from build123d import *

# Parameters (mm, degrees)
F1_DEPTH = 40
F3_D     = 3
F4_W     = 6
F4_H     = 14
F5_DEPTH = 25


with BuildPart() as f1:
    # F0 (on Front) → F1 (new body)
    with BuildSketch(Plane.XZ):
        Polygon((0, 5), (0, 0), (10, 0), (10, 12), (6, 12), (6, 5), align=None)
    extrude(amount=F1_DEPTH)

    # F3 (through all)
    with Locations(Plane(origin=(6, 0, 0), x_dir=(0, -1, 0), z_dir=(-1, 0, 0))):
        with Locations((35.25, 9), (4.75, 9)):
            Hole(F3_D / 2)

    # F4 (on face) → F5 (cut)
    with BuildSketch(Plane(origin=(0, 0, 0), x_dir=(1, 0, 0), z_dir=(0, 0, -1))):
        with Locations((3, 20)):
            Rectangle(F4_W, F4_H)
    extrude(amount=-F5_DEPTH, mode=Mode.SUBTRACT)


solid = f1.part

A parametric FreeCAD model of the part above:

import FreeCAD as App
import Part
import Sketcher

V = App.Vector
Q = App.Units.Quantity


def add_polygon(sketch, points):
    """Adds a closed chain of lines whose ends are joined by coincident constraints."""
    first, n = sketch.GeometryCount, len(points)
    for a, b in zip(points, points[1:] + points[:1]):
        sketch.addGeometry(Part.LineSegment(App.Vector(*a, 0), App.Vector(*b, 0)), False)
    for i in range(n):
        sketch.addConstraint(Sketcher.Constraint("Coincident", first + i, 2, first + (i + 1) % n, 1))

doc = App.newDocument("Part")
body = doc.addObject("PartDesign::Body", "Body")

sketch1 = body.newObject("Sketcher::SketchObject", "Sketch")
sketch1.AttachmentSupport = (doc.getObject("XZ_Plane"), [""])
sketch1.MapMode = "FlatFace"
add_polygon(sketch1, [(0, 5), (0, 0), (10, 0), (10, 12), (6, 12), (6, 5)])
sketch1.addConstraint(Sketcher.Constraint("Vertical", 0))
sketch1.addConstraint(Sketcher.Constraint("Horizontal", 1))
sketch1.addConstraint(Sketcher.Constraint("Vertical", 2))
sketch1.addConstraint(Sketcher.Constraint("Horizontal", 3))
sketch1.addConstraint(Sketcher.Constraint("Vertical", 4))
sketch1.addConstraint(Sketcher.Constraint("Horizontal", 5))
sketch1.addConstraint(Sketcher.Constraint("Coincident", 0, 2, -1, 1))
sketch1.addConstraint(Sketcher.Constraint("DistanceX", 1, 1, 1, 2, Q("10 mm")))
sketch1.addConstraint(Sketcher.Constraint("DistanceX", 3, 2, 3, 1, Q("4 mm")))
sketch1.addConstraint(Sketcher.Constraint("DistanceY", 0, 2, 0, 1, Q("5 mm")))
sketch1.addConstraint(Sketcher.Constraint("DistanceY", 2, 1, 2, 2, Q("12 mm")))
pad1 = body.newObject("PartDesign::Pad", "Pad")
pad1.Profile = sketch1
pad1.Length = 40

sketch2 = body.newObject("Sketcher::SketchObject", "Sketch001")
sketch2.AttachmentSupport = (doc.getObject("YZ_Plane"), [""])
sketch2.MapMode = "FlatFace"
sketch2.AttachmentOffset = App.Placement(V(0, 0, 6), App.Rotation())
sketch2.addGeometry(Part.Circle(V(-35.2, 9, 0), V(0, 0, 1), 1.5), False)
sketch2.addGeometry(Part.Circle(V(-4.8, 9, 0), V(0, 0, 1), 1.5), False)
sketch2.addConstraint(Sketcher.Constraint("Equal", 0, 1))
sketch2.addConstraint(Sketcher.Constraint("Horizontal", 0, 3, 1, 3))
sketch2.addConstraint(Sketcher.Constraint("Diameter", 0, Q("3 mm")))
sketch2.addConstraint(Sketcher.Constraint("DistanceY", -1, 1, 0, 3, Q("9 mm")))
sketch2.addConstraint(Sketcher.Constraint("DistanceX", 0, 3, 1, 3, Q("30.5 mm")))
sketch2.addConstraint(Sketcher.Constraint("DistanceX", 0, 3, -1, 1, Q("35.25 mm")))
doc.recompute()
hole = body.newObject("PartDesign::Hole", "Hole")
hole.Profile = sketch2
hole.ThreadType = "None"
hole.Diameter = 3
hole.DepthType = "ThroughAll"
hole.Reversed = True

sketch3 = body.newObject("Sketcher::SketchObject", "Sketch002")
sketch3.AttachmentSupport = (doc.getObject("XY_Plane"), [""])
sketch3.MapMode = "FlatFace"
add_polygon(sketch3, [(0, -27), (0, -13), (6, -13), (6, -27)])
sketch3.addConstraint(Sketcher.Constraint("Vertical", 0))
sketch3.addConstraint(Sketcher.Constraint("Horizontal", 1))
sketch3.addConstraint(Sketcher.Constraint("Vertical", 2))
sketch3.addConstraint(Sketcher.Constraint("Horizontal", 3))
sketch3.addConstraint(Sketcher.Constraint("PointOnObject", 0, 2, -2))
sketch3.addConstraint(Sketcher.Constraint("DistanceX", 1, 1, 1, 2, Q("6 mm")))
sketch3.addConstraint(Sketcher.Constraint("DistanceY", 0, 1, 0, 2, Q("14 mm")))
sketch3.addConstraint(Sketcher.Constraint("DistanceY", 0, 2, -1, 1, Q("13 mm")))
pocket1 = body.newObject("PartDesign::Pocket", "Pocket")
pocket1.Profile = sketch3
pocket1.Length = 25
pocket1.Reversed = True

doc.recompute()
